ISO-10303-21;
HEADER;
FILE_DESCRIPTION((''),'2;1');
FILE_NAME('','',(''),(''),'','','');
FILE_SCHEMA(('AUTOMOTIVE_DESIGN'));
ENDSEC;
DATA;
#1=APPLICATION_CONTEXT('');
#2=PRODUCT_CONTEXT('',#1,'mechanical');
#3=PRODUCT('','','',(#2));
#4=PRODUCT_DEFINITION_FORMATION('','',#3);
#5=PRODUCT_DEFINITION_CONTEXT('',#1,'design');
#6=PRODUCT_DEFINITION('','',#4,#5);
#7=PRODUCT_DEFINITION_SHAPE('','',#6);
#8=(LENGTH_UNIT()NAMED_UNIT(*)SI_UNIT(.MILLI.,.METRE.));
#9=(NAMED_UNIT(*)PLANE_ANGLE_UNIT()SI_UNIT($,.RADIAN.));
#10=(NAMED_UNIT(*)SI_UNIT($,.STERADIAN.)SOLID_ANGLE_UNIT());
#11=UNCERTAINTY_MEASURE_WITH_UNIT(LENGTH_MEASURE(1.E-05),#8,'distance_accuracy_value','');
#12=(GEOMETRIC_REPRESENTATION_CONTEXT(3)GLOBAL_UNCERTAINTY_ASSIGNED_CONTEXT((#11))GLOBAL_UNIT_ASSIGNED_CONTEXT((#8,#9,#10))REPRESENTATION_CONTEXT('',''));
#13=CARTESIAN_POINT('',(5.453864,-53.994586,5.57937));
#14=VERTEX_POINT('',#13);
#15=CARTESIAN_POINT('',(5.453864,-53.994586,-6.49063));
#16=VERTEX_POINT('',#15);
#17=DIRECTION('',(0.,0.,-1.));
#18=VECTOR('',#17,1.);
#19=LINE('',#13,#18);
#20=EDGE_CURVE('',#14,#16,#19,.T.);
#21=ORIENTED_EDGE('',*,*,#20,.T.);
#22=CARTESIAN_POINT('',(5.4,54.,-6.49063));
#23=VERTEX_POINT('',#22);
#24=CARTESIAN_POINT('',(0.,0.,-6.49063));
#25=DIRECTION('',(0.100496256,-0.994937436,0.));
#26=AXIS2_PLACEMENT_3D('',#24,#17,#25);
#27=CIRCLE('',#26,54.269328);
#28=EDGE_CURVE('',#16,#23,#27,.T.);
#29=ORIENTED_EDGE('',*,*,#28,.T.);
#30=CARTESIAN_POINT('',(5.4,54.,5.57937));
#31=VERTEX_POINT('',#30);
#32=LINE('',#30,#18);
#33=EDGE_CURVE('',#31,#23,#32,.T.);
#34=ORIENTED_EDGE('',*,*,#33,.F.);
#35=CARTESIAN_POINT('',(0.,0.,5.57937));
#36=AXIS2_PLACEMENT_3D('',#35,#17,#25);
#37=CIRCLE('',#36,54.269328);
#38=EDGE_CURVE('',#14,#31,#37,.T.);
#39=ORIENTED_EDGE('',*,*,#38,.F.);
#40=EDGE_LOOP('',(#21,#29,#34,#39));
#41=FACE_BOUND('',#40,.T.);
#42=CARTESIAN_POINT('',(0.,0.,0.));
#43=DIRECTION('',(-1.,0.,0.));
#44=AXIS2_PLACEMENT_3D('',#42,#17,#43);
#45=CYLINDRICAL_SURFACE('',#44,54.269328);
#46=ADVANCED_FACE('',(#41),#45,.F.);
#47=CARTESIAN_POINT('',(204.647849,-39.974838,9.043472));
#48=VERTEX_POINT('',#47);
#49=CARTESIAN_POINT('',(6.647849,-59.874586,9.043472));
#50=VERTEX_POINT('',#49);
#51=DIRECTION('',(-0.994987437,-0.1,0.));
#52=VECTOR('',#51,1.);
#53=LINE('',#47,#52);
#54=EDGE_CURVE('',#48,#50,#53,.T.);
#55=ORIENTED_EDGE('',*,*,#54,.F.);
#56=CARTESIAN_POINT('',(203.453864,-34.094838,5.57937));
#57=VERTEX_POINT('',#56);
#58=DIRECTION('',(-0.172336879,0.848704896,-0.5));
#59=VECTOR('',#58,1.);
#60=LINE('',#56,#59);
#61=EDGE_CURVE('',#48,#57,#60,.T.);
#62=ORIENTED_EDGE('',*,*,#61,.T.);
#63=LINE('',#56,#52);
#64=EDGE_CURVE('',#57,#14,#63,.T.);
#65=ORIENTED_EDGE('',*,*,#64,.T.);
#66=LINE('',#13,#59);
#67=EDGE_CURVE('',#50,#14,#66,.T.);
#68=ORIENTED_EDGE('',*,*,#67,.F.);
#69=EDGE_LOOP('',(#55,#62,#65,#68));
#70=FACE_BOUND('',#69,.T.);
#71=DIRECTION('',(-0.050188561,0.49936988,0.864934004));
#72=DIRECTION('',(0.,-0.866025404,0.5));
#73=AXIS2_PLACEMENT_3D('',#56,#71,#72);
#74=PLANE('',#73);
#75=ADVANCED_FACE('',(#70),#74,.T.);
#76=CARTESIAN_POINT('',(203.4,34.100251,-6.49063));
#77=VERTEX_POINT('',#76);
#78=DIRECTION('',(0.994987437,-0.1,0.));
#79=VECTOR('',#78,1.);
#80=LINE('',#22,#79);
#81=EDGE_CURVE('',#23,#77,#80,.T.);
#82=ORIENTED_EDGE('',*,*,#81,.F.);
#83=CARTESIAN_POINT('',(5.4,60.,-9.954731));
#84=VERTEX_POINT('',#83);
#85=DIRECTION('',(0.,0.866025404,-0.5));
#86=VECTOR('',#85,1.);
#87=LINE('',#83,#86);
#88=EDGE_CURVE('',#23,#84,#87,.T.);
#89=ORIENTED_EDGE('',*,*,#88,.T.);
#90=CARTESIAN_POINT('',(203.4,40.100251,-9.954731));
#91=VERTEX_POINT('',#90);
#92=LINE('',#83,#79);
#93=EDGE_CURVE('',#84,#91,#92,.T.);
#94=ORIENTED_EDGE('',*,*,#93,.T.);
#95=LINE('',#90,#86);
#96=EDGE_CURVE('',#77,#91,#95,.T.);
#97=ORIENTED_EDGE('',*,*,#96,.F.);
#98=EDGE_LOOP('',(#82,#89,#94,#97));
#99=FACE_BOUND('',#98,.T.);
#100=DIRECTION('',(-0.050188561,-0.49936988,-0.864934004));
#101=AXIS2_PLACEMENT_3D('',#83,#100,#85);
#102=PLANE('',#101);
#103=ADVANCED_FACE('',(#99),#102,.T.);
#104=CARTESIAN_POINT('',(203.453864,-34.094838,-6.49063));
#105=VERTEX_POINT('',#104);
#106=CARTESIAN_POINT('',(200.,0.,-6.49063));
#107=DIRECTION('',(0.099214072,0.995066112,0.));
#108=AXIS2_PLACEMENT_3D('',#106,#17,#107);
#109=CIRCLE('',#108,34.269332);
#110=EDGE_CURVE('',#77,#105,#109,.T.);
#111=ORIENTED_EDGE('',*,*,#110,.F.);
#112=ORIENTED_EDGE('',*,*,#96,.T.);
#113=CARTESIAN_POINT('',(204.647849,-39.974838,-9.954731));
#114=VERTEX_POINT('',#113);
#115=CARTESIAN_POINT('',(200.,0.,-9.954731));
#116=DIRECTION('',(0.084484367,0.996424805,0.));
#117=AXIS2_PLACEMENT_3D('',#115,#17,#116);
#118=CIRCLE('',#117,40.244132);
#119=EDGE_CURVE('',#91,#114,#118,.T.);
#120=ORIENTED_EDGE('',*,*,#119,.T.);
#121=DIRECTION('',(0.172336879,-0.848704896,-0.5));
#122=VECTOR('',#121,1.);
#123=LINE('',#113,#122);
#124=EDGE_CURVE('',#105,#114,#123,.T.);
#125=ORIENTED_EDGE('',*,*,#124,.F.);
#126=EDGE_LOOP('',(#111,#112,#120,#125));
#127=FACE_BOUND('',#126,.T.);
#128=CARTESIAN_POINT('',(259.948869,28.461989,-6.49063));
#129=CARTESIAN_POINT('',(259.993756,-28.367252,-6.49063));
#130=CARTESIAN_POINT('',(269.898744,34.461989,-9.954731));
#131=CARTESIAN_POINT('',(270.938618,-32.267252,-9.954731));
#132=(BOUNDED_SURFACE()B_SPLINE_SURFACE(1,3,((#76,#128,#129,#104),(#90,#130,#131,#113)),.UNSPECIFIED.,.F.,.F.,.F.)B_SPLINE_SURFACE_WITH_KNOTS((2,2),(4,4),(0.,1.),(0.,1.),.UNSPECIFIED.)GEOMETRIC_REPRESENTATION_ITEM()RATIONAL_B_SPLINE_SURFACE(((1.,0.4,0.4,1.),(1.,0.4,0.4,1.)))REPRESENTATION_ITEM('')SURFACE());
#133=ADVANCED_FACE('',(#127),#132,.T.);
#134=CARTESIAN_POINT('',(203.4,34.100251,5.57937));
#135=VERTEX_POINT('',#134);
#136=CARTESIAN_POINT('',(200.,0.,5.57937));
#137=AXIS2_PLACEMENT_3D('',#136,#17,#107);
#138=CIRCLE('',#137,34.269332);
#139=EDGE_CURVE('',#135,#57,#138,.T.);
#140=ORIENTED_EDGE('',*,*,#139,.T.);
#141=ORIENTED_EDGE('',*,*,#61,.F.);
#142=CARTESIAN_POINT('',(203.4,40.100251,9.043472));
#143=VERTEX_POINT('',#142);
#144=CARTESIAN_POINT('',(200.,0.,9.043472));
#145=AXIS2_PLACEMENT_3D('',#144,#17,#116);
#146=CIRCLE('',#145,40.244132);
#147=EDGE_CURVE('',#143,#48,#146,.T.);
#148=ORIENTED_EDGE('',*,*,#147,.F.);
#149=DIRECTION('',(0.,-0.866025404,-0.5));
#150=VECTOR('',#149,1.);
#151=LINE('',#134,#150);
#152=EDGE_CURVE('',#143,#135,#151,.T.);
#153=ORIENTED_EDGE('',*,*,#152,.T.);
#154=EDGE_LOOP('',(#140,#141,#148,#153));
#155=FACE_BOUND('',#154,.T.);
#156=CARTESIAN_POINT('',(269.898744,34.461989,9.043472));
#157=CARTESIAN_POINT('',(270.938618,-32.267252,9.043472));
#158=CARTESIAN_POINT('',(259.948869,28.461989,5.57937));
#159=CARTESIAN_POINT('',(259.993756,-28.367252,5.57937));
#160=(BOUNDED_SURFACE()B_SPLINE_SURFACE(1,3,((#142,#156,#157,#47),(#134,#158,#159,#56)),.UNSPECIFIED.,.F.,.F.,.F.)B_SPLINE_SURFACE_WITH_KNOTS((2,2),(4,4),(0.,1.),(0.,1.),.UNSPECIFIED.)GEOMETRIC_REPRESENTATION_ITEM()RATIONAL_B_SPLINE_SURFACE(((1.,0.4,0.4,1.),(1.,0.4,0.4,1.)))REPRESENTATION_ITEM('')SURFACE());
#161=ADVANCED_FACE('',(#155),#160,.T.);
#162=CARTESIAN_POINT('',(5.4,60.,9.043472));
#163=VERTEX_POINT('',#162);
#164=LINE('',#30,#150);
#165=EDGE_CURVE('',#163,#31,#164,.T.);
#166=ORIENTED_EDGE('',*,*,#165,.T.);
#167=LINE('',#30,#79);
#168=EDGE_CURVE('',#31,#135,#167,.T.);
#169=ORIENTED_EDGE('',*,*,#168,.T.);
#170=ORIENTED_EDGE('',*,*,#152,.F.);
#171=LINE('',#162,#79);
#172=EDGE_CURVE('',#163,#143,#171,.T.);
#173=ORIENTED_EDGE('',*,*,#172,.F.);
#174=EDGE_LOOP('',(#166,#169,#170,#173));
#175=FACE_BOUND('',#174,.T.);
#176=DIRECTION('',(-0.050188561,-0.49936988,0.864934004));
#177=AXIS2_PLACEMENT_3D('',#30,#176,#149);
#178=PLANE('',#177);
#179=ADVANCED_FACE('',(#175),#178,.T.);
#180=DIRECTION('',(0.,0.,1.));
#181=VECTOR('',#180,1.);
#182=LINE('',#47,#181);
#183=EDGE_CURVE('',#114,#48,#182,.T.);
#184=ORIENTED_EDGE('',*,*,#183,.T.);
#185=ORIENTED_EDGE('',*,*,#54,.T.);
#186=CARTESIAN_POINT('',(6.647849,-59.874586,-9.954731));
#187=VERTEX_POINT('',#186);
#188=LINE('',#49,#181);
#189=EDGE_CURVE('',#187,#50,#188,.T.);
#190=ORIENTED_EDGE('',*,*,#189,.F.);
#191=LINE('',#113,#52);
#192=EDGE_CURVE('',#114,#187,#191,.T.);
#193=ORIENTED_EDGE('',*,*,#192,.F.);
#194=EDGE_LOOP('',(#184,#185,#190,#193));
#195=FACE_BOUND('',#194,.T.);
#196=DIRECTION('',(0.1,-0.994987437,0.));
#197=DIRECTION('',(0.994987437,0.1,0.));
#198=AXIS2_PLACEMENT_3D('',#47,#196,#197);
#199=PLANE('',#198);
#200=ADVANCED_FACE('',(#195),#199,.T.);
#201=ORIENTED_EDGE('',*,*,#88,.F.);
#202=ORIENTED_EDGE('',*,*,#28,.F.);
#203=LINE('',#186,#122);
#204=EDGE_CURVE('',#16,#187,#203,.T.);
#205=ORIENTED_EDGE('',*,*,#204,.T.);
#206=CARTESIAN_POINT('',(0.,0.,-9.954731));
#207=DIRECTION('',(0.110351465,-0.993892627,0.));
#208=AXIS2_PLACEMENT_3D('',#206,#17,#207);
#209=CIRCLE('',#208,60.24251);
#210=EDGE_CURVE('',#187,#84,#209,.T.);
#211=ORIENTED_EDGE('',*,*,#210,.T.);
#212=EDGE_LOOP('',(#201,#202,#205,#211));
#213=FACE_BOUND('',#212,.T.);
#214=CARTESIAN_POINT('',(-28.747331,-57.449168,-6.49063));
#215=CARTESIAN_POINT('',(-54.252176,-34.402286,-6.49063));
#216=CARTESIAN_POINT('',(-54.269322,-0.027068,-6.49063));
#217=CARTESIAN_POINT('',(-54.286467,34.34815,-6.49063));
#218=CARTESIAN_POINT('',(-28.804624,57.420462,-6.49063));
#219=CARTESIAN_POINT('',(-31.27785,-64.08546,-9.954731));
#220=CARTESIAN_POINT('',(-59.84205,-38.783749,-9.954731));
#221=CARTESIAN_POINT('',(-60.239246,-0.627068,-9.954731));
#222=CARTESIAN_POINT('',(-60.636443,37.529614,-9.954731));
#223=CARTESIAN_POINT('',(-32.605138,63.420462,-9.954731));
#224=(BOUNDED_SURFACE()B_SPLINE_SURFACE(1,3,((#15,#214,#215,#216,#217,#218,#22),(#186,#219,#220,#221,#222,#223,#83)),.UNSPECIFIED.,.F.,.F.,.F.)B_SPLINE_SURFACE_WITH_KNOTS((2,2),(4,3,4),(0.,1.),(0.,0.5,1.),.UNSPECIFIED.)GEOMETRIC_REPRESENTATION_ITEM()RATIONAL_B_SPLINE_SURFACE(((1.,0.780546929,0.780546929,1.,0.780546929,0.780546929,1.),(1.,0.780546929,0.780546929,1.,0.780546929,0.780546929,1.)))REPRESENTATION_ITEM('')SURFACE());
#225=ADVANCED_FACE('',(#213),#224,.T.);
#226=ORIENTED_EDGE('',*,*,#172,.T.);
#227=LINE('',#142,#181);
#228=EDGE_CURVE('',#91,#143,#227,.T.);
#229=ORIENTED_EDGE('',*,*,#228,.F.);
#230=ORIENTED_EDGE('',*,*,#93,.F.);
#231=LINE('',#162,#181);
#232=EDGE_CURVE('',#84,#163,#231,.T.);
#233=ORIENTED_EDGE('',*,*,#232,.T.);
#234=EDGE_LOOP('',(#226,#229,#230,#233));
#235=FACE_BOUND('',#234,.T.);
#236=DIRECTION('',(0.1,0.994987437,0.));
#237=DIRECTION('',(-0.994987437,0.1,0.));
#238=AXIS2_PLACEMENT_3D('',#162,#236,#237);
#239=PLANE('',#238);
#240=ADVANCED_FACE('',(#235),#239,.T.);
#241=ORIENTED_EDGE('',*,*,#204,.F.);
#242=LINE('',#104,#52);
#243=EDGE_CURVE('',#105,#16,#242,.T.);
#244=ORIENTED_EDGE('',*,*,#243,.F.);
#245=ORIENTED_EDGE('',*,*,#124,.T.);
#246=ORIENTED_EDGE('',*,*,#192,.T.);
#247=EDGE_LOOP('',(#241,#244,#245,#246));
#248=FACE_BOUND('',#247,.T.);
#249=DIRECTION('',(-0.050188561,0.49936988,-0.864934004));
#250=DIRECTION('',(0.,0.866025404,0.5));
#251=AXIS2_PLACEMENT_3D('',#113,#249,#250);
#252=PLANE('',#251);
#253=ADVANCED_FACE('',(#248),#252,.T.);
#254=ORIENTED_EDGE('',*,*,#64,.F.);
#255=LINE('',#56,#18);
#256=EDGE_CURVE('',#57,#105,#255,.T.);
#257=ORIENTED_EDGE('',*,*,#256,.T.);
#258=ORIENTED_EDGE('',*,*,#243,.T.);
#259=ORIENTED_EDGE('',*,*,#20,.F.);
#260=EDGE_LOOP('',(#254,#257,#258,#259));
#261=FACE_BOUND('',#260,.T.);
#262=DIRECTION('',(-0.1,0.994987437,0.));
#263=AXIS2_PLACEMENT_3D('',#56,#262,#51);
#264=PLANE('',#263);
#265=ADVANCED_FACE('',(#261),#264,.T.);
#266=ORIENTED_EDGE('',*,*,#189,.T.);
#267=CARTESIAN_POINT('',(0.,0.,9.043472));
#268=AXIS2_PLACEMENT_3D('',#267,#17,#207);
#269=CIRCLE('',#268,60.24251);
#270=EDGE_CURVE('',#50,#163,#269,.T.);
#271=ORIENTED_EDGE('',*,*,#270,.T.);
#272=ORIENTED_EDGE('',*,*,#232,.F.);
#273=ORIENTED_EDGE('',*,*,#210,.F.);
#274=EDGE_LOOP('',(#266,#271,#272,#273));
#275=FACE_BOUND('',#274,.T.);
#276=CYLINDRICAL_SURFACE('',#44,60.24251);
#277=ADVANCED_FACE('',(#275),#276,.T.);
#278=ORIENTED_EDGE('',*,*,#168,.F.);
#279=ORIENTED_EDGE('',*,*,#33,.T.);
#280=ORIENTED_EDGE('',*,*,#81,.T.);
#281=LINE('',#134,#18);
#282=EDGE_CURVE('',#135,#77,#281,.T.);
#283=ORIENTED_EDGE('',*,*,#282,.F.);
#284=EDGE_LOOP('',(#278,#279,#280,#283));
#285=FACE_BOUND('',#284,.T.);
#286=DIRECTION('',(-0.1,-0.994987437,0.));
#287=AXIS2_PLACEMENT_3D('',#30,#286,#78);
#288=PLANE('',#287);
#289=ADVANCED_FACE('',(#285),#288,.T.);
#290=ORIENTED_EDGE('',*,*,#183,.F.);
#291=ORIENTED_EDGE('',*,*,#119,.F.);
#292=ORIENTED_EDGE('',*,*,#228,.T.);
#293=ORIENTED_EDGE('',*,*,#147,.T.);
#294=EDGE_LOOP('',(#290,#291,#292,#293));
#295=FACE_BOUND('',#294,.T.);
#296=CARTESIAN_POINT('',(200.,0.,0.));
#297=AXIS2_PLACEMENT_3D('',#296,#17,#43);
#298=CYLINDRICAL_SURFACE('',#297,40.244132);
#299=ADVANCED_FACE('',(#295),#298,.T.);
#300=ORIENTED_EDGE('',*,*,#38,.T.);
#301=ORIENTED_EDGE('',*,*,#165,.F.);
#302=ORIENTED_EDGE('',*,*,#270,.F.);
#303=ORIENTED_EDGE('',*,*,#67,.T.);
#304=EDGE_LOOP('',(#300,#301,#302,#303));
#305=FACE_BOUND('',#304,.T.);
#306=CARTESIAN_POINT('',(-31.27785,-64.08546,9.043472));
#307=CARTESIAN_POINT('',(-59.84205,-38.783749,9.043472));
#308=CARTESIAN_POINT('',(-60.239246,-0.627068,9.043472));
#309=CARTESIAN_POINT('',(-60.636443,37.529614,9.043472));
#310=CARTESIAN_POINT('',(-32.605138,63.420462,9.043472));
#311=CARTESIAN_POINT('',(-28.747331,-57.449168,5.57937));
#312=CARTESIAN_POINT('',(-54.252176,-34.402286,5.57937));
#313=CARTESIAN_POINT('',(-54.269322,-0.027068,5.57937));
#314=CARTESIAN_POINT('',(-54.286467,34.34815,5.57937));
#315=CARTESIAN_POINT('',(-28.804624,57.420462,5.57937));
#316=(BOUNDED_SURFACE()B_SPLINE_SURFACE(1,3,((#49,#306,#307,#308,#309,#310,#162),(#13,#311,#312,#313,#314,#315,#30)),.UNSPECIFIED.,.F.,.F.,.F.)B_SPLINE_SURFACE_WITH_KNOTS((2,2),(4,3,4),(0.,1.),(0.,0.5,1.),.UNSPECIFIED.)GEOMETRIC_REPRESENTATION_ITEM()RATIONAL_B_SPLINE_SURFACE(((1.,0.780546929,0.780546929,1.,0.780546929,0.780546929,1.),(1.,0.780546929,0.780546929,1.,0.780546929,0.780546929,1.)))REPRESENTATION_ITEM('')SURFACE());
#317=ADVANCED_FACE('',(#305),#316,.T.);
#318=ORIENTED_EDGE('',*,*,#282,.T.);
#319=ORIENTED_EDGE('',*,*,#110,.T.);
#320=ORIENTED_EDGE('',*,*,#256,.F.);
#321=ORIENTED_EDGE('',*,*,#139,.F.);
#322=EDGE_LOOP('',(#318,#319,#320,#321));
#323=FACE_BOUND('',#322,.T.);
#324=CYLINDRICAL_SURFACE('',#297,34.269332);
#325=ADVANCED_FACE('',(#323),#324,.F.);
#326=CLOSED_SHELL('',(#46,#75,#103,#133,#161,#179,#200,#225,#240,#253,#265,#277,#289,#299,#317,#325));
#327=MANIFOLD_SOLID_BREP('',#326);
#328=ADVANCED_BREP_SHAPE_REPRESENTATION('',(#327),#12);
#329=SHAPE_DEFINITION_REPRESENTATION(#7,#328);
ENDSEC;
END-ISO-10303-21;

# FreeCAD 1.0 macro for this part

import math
import FreeCAD as App
import Part
import Sketcher
Q = App.Units.Quantity

doc = App.newDocument("Part")
body = doc.addObject("PartDesign::Body", "Body")

sketch1 = body.newObject("Sketcher::SketchObject", "Sketch")
sketch1.AttachmentSupport = (doc.getObject("YZ_Plane"), [""])
sketch1.MapMode = "FlatFace"
sketch1.AttachmentOffset = App.Placement(App.Vector(0, 0, 5.4), App.Rotation())
sketch1.addGeometry([
    Part.LineSegment(App.Vector(54, 6, 0), App.Vector(54, -6, 0)),
    Part.LineSegment(App.Vector(54, -6, 0), App.Vector(60, -10, 0)),
    Part.LineSegment(App.Vector(60, -10, 0), App.Vector(60, 9, 0)),
    Part.LineSegment(App.Vector(60, 9, 0), App.Vector(54, 6, 0)),
], False)
sketch1.addConstraint([
    Sketcher.Constraint("Coincident", 0, 2, 1, 1),
    Sketcher.Constraint("Coincident", 1, 2, 2, 1),
    Sketcher.Constraint("Coincident", 2, 2, 3, 1),
    Sketcher.Constraint("Coincident", 3, 2, 0, 1),
    Sketcher.Constraint("Vertical", 0),
    Sketcher.Constraint("Vertical", 2),
    Sketcher.Constraint("Equal", 1, 3),
    Sketcher.Constraint("Angle", 1, Q("-30 deg")),
    Sketcher.Constraint("DistanceX", -1, 1, 0, 2, Q("54 mm")),
    Sketcher.Constraint("DistanceX", -1, 1, 1, 2, Q("60 mm")),
    Sketcher.Constraint("DistanceY", 0, 2, 0, 1, Q("12.07 mm")),
    Sketcher.Constraint("DistanceY", 0, 2, -1, 1, Q("6.49063 mm")),
])

sketch2 = body.newObject("Sketcher::SketchObject", "Sketch001")
sketch2.AttachmentSupport = (doc.getObject("XY_Plane"), [""])
sketch2.MapMode = "FlatFace"
sketch2.addGeometry([
    Part.LineSegment(App.Vector(5, 54, 0), App.Vector(203, 34, 0)),
    Part.ArcOfCircle(Part.Circle(App.Vector(200, 0, 0), App.Vector(0, 0, 1), 34), math.radians(-84), math.radians(84)),
    Part.LineSegment(App.Vector(203, -34, 0), App.Vector(5, -54, 0)),
    Part.ArcOfCircle(Part.Circle(App.Vector(0, 0, 0), App.Vector(0, 0, 1), 54), math.radians(84), math.radians(276)),
], False)
sketch2.addConstraint([
    Sketcher.Constraint("Tangent", 0, 2, 1, 2),
    Sketcher.Constraint("Tangent", 1, 1, 2, 1),
    Sketcher.Constraint("Tangent", 2, 2, 3, 2),
    Sketcher.Constraint("Tangent", 3, 1, 0, 1),
    Sketcher.Constraint("Coincident", 3, 3, -1, 1),
    Sketcher.Constraint("PointOnObject", 1, 3, -1),
    Sketcher.Constraint("Radius", 1, Q("34 mm")),
    Sketcher.Constraint("Radius", 3, Q("54 mm")),
    Sketcher.Constraint("DistanceX", -1, 1, 1, 3, Q("200 mm")),
])
doc.recompute()

additivepipe = body.newObject("PartDesign::AdditivePipe", "AdditivePipe")
additivepipe.Profile = sketch1
additivepipe.Spine = (sketch2, ["Edge1", "Edge2", "Edge3", "Edge4"])

doc.recompute()
